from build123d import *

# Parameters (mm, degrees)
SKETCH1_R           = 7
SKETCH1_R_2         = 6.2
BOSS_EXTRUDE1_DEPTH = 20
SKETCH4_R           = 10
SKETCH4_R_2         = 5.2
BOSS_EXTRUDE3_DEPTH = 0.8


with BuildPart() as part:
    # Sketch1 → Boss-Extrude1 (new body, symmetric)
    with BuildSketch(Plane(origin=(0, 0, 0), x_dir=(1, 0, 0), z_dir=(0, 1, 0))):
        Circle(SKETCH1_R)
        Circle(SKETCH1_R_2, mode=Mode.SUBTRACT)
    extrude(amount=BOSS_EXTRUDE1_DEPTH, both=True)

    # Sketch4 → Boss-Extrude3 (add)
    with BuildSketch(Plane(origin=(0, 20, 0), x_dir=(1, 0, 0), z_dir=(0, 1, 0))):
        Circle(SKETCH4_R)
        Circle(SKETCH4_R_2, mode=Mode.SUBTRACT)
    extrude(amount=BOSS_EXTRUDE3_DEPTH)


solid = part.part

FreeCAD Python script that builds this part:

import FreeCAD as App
import Part
import Sketcher

V = App.Vector
Q = App.Units.Quantity

doc = App.newDocument("Part")
body = doc.addObject("PartDesign::Body", "Body")

# Sketch on XZ plane
sketch1 = body.newObject("Sketcher::SketchObject", "Sketch")
sketch1.AttachmentSupport = (doc.getObject("XZ_Plane"), [""])
sketch1.MapMode = "FlatFace"
sketch1.addGeometry(Part.Circle(V(0, 0, 0), V(0, 0, 1), 7), False)
sketch1.addGeometry(Part.Circle(V(0, 0, 0), V(0, 0, 1), 6.2), False)
sketch1.addConstraint(Sketcher.Constraint("Coincident", 0, 3, -1, 1))
sketch1.addConstraint(Sketcher.Constraint("Coincident", 1, 3, -1, 1))
sketch1.addConstraint(Sketcher.Constraint("Diameter", 0, Q("14 mm")))
sketch1.addConstraint(Sketcher.Constraint("Diameter", 1, Q("12.4 mm")))
pad1 = body.newObject("PartDesign::Pad", "Pad")
pad1.Profile = sketch1
pad1.Length = 40
pad1.Midplane = True

# Sketch on XZ plane
sketch2 = body.newObject("Sketcher::SketchObject", "Sketch001")
sketch2.AttachmentSupport = (doc.getObject("XZ_Plane"), [""])
sketch2.MapMode = "FlatFace"
sketch2.AttachmentOffset = App.Placement(V(0, 0, -20), App.Rotation())
sketch2.addGeometry(Part.Circle(V(0, 0, 0), V(0, 0, 1), 10), False)
sketch2.addGeometry(Part.Circle(V(0, 0, 0), V(0, 0, 1), 5.2), False)
sketch2.addConstraint(Sketcher.Constraint("Coincident", 0, 3, -1, 1))
sketch2.addConstraint(Sketcher.Constraint("Coincident", 1, 3, -1, 1))
sketch2.addConstraint(Sketcher.Constraint("Diameter", 0, Q("20 mm")))
sketch2.addConstraint(Sketcher.Constraint("Diameter", 1, Q("10.4 mm")))
pad2 = body.newObject("PartDesign::Pad", "Pad001")
pad2.Profile = sketch2
pad2.Length = 0.8
pad2.Reversed = True

doc.recompute()
